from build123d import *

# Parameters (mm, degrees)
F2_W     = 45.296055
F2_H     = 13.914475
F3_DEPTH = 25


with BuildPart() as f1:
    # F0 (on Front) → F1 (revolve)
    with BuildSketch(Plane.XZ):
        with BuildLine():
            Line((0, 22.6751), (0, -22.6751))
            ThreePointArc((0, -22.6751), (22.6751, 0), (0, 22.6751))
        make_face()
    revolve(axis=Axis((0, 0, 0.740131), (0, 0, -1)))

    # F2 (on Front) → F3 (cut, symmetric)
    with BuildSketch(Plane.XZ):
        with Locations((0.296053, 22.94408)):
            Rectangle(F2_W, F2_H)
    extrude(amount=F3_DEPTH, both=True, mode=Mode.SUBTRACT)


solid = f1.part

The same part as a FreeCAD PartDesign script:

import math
import FreeCAD as App
import Part
import Sketcher
from FreeCAD import Vector
Q = App.Units.Quantity


def add_polygon(sketch, points):
    """Adds a closed chain of lines whose ends are joined by coincident constraints."""
    first, n = sketch.GeometryCount, len(points)
    for a, b in zip(points, points[1:] + points[:1]):
        sketch.addGeometry(Part.LineSegment(App.Vector(*a, 0), App.Vector(*b, 0)), False)
    for i in range(n):
        sketch.addConstraint(Sketcher.Constraint("Coincident", first + i, 2, first + (i + 1) % n, 1))

doc = App.newDocument("Part")
body = doc.addObject("PartDesign::Body", "Body")

# Sketch on XZ plane
sketch1 = body.newObject("Sketcher::SketchObject", "Sketch")
sketch1.AttachmentSupport = (doc.getObject("XZ_Plane"), [""])
sketch1.MapMode = "FlatFace"
sketch1.addGeometry([
    Part.LineSegment(Vector(0, 23, 0), Vector(0, -23, 0)),
    Part.ArcOfCircle(Part.Circle(Vector(0, 0, 0), Vector(0, 0, 1), 23), math.radians(-90), math.radians(90)),
], False)
sketch1.addConstraint([
    Sketcher.Constraint("Coincident", 0, 1, 1, 2),
    Sketcher.Constraint("Coincident", 1, 1, 0, 2),
    Sketcher.Constraint("Vertical", 0),
    Sketcher.Constraint("Coincident", 1, 3, -1, 1),
    Sketcher.Constraint("PointOnObject", 0, 1, -2),
    Sketcher.Constraint("Radius", 1, Q("22.6751 mm")),
])
revolution = body.newObject("PartDesign::Revolution", "Revolution")
revolution.Profile = sketch1
revolution.ReferenceAxis = (sketch1, ["V_Axis"])
revolution.Angle = 360

# Sketch on XZ plane
sketch2 = body.newObject("Sketcher::SketchObject", "Sketch001")
sketch2.AttachmentSupport = (doc.getObject("XZ_Plane"), [""])
sketch2.MapMode = "FlatFace"
add_polygon(sketch2, [(-22, 30), (-22, 16), (23, 16), (23, 30)])  # lines 0-3
sketch2.addConstraint([
    Sketcher.Constraint("Vertical", 0),
    Sketcher.Constraint("Horizontal", 1),
    Sketcher.Constraint("Vertical", 2),
    Sketcher.Constraint("Horizontal", 3),
    Sketcher.Constraint("DistanceX", 1, 1, 1, 2, Q("45.296055 mm")),
    Sketcher.Constraint("DistanceY", 0, 2, 0, 1, Q("13.914475 mm")),
    Sketcher.Constraint("DistanceX", -1, 1, 1, 2, Q("22.94408 mm")),
    Sketcher.Constraint("DistanceY", -1, 1, 0, 2, Q("15.986842 mm")),
])
pocket1 = body.newObject("PartDesign::Pocket", "Pocket")
pocket1.Profile = sketch2
pocket1.Length = 50
pocket1.Midplane = True

doc.recompute()
